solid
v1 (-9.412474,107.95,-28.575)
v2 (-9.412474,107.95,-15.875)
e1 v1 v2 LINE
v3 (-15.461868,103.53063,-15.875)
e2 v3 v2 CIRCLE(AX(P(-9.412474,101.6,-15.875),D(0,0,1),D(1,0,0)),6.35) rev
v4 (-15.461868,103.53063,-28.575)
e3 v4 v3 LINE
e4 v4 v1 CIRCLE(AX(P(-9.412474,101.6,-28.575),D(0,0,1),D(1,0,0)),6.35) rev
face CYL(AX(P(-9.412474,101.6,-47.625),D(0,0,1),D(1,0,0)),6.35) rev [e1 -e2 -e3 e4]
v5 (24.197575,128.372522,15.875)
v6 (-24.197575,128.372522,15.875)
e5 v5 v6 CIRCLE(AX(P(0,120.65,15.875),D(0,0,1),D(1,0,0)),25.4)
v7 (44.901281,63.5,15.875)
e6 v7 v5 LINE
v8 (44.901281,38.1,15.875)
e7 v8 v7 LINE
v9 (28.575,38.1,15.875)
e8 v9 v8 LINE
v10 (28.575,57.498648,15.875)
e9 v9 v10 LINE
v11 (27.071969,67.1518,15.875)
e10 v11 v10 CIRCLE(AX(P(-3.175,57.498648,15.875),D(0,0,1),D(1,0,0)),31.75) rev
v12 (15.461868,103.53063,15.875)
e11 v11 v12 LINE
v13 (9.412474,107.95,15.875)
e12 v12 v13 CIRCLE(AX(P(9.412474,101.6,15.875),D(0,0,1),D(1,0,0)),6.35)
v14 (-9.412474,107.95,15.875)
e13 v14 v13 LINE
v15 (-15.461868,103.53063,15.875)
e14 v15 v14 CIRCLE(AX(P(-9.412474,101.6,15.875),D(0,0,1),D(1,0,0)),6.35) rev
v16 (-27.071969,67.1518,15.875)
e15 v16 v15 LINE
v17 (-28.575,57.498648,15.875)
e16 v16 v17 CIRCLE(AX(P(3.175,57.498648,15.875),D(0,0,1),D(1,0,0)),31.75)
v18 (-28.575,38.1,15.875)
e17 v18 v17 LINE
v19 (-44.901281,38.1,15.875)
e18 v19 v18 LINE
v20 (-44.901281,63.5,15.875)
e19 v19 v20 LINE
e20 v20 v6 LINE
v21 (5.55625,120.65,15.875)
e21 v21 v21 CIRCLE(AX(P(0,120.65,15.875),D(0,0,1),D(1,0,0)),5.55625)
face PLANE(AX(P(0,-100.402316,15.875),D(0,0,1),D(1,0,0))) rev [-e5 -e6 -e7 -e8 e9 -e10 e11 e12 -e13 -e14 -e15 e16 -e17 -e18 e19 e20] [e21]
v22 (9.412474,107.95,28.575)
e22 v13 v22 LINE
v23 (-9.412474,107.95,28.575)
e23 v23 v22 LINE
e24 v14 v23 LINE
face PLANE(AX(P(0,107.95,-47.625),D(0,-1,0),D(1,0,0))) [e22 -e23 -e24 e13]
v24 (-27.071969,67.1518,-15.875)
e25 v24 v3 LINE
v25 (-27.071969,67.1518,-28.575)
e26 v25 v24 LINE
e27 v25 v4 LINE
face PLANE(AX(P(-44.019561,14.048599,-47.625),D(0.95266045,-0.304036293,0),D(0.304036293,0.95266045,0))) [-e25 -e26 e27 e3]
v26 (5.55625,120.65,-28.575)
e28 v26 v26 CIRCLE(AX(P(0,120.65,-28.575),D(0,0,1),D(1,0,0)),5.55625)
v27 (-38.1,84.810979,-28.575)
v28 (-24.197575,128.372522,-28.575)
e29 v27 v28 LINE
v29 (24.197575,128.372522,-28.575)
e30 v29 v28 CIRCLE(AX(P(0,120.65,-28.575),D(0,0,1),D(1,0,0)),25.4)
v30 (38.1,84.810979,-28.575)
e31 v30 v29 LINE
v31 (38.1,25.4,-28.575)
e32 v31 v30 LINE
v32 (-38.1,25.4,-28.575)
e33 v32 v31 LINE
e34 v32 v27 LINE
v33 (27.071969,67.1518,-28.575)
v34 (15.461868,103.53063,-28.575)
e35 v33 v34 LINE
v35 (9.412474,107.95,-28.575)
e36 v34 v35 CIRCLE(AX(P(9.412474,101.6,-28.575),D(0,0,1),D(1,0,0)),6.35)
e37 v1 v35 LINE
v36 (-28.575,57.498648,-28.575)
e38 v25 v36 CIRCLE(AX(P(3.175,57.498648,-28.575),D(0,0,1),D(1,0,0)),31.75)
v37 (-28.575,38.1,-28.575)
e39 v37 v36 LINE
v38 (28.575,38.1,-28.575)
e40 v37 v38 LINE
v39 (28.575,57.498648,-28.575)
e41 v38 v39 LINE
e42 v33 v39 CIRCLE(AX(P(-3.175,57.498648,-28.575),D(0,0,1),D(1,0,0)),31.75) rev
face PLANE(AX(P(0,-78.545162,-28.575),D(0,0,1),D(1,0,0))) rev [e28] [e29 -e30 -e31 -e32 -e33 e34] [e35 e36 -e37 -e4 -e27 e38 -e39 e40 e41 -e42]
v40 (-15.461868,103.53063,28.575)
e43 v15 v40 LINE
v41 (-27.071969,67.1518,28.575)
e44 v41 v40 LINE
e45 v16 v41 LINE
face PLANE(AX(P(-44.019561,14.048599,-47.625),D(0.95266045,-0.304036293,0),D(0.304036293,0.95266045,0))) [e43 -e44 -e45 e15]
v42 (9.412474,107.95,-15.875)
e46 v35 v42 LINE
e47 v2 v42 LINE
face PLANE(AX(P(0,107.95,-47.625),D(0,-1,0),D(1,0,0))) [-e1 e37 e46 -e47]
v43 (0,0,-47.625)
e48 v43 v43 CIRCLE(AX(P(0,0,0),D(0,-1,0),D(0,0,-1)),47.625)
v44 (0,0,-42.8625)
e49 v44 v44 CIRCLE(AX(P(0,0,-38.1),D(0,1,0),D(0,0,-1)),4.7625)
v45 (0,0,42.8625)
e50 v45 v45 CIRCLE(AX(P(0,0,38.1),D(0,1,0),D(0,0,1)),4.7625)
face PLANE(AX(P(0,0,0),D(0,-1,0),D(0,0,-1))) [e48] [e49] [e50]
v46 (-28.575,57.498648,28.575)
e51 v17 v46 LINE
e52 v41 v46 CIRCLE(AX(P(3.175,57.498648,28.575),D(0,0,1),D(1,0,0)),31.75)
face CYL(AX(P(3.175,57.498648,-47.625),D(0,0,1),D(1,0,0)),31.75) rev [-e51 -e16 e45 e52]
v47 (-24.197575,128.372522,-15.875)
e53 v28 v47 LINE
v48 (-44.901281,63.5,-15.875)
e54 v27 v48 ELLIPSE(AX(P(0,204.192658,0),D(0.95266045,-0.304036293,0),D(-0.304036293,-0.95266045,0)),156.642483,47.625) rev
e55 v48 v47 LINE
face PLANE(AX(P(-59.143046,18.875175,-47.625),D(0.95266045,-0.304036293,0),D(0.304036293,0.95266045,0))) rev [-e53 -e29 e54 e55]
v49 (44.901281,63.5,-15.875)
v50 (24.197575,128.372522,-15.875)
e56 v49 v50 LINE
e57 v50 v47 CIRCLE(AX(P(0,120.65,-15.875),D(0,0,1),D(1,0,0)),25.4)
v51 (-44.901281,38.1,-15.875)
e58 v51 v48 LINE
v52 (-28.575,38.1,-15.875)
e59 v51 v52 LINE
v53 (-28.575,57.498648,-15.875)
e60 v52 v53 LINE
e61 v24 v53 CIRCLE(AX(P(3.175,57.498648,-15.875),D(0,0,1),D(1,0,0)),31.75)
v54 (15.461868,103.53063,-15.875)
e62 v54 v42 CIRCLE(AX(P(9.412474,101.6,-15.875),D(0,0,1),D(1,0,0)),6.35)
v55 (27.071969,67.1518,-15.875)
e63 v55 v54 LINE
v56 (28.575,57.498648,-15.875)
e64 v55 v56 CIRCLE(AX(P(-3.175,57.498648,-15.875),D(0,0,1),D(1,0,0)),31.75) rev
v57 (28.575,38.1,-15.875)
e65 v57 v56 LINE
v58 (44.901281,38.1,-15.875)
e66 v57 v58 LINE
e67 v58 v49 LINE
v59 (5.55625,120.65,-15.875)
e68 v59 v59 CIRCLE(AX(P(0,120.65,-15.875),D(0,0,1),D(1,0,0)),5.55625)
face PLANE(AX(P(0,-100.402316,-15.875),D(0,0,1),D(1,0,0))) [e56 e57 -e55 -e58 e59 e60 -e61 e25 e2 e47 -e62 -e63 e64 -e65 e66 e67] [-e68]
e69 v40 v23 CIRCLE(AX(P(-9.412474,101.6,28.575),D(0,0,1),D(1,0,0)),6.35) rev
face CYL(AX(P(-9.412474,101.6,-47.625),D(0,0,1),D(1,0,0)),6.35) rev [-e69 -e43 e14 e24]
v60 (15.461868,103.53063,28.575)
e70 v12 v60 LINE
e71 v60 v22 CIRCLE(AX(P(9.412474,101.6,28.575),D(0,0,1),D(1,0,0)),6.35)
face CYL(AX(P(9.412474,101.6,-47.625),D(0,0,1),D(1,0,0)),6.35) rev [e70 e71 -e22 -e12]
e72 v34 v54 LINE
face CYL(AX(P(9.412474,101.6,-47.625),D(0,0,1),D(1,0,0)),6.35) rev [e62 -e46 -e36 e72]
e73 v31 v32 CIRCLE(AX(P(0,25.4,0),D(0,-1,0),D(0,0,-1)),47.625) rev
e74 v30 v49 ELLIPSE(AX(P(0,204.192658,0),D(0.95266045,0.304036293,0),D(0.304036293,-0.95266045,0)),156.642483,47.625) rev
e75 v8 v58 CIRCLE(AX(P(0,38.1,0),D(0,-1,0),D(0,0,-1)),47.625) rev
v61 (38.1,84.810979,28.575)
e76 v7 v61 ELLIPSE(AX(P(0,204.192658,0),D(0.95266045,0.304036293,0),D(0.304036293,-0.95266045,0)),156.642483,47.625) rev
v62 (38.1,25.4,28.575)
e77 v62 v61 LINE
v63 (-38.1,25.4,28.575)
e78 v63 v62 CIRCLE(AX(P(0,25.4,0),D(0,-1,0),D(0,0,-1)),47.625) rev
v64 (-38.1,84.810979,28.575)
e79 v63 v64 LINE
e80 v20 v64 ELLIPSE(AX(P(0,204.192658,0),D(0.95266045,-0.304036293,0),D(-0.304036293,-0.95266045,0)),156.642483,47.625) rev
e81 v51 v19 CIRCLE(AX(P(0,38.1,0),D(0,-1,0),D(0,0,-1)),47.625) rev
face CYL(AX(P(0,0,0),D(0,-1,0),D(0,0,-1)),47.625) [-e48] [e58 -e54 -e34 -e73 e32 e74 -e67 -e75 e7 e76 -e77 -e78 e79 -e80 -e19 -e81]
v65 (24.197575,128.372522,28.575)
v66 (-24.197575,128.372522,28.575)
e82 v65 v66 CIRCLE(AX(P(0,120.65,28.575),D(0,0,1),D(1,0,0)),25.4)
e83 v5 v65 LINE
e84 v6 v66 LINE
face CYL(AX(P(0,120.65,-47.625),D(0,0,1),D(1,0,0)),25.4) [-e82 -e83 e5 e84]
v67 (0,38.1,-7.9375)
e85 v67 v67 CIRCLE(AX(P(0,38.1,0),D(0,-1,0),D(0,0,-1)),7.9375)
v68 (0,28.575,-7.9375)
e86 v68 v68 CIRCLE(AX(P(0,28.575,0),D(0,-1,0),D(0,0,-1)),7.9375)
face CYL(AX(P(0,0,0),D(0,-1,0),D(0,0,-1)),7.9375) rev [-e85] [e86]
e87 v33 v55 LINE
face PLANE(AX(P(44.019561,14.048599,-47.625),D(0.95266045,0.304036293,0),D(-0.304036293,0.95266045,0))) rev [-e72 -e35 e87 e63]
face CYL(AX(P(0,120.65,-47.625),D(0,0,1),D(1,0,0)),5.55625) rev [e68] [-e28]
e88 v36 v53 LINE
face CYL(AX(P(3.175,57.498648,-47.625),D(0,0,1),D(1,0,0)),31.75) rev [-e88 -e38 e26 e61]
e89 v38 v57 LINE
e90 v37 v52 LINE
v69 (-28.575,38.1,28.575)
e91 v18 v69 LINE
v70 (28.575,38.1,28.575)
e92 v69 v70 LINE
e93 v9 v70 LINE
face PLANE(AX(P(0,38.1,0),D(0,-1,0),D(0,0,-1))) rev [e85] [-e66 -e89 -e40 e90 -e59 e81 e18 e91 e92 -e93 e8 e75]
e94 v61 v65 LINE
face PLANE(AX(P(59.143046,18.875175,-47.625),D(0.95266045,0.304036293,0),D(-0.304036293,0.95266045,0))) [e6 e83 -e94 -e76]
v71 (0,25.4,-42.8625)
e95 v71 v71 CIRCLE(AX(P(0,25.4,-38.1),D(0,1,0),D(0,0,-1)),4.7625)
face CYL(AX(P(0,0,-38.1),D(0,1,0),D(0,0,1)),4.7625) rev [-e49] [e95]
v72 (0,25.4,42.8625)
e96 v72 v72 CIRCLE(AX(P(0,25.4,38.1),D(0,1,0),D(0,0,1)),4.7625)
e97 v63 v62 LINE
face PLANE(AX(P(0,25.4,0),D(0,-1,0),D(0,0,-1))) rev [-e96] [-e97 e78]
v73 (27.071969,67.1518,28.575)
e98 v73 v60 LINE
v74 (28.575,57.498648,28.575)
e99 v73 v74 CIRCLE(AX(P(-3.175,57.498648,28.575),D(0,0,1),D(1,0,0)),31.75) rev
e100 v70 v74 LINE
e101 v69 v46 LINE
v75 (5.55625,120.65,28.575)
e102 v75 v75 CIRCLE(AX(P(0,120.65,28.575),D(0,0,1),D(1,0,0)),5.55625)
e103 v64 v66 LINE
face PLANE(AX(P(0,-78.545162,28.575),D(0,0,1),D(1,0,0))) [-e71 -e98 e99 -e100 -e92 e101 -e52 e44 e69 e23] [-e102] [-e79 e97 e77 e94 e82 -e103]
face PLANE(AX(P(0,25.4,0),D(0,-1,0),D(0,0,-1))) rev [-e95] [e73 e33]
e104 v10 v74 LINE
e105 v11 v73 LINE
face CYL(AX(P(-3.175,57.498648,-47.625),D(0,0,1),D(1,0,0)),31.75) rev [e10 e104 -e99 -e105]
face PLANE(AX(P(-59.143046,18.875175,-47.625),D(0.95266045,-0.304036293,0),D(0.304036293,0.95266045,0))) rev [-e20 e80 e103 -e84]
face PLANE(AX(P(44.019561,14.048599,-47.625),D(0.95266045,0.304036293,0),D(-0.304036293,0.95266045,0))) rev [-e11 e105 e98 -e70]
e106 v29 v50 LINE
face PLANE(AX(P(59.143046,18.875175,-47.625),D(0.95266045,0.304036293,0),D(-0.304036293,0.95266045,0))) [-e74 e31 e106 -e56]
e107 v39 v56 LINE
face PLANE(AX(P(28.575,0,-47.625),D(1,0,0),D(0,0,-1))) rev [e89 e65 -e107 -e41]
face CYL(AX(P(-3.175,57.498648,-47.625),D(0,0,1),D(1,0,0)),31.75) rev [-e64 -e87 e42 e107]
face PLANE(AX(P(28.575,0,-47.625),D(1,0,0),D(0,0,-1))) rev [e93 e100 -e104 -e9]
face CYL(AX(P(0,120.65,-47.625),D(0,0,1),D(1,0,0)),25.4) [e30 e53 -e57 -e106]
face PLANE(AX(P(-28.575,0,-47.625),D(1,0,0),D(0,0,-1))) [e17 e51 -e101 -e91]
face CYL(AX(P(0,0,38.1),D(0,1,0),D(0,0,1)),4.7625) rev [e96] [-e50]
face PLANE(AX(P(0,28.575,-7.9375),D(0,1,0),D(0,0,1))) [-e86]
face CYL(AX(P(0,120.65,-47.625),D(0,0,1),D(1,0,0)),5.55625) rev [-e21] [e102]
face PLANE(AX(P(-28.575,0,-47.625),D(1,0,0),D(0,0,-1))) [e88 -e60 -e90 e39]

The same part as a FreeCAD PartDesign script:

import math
import FreeCAD as App
import Part
import Sketcher

V = App.Vector
Q = App.Units.Quantity

doc = App.newDocument("Part")
body = doc.addObject("PartDesign::Body", "Body")

sketch1 = body.newObject("Sketcher::SketchObject", "Sketch")
sketch1.AttachmentSupport = (doc.getObject("YZ_Plane"), [""])
sketch1.MapMode = "FlatFace"
sketch1.addGeometry(Part.LineSegment(V(0, 0, 0), V(0, -48, 0)), False)
sketch1.addGeometry(Part.LineSegment(V(0, -48, 0), V(146, -48, 0)), False)
sketch1.addGeometry(Part.LineSegment(V(146, -48, 0), V(146, 0, 0)), False)
sketch1.addGeometry(Part.LineSegment(V(146, 0, 0), V(38, 0, 0)), False)
sketch1.addGeometry(Part.LineSegment(V(38, 0, 0), V(38, -8, 0)), False)
sketch1.addGeometry(Part.LineSegment(V(38, -8, 0), V(29, -8, 0)), False)
sketch1.addGeometry(Part.LineSegment(V(29, -8, 0), V(29, 0, 0)), False)
sketch1.addGeometry(Part.LineSegment(V(29, 0, 0), V(0, 0, 0)), False)
sketch1.addConstraint(Sketcher.Constraint("Coincident", 0, 2, 1, 1))
sketch1.addConstraint(Sketcher.Constraint("Coincident", 1, 2, 2, 1))
sketch1.addConstraint(Sketcher.Constraint("Coincident", 2, 2, 3, 1))
sketch1.addConstraint(Sketcher.Constraint("Coincident", 3, 2, 4, 1))
sketch1.addConstraint(Sketcher.Constraint("Coincident", 4, 2, 5, 1))
sketch1.addConstraint(Sketcher.Constraint("Coincident", 5, 2, 6, 1))
sketch1.addConstraint(Sketcher.Constraint("Coincident", 6, 2, 7, 1))
sketch1.addConstraint(Sketcher.Constraint("Coincident", 7, 2, 0, 1))
sketch1.addConstraint(Sketcher.Constraint("Vertical", 0))
sketch1.addConstraint(Sketcher.Constraint("Horizontal", 1))
sketch1.addConstraint(Sketcher.Constraint("Vertical", 2))
sketch1.addConstraint(Sketcher.Constraint("Horizontal", 3))
sketch1.addConstraint(Sketcher.Constraint("Vertical", 4))
sketch1.addConstraint(Sketcher.Constraint("Horizontal", 5))
sketch1.addConstraint(Sketcher.Constraint("Vertical", 6))
sketch1.addConstraint(Sketcher.Constraint("Horizontal", 7))
sketch1.addConstraint(Sketcher.Constraint("Coincident", 7, 2, -1, 1))
sketch1.addConstraint(Sketcher.Constraint("PointOnObject", 2, 2, -1))
sketch1.addConstraint(Sketcher.Constraint("DistanceX", 1, 1, 1, 2, Q("5.75 in")))
sketch1.addConstraint(Sketcher.Constraint("DistanceX", 3, 2, 3, 1, Q("4.25 in")))
sketch1.addConstraint(Sketcher.Constraint("DistanceX", 5, 2, 5, 1, Q("0.375 in")))
sketch1.addConstraint(Sketcher.Constraint("DistanceY", 0, 2, 0, 1, Q("1.875 in")))
sketch1.addConstraint(Sketcher.Constraint("DistanceY", 4, 2, 4, 1, Q("0.3125 in")))
revolution = body.newObject("PartDesign::Revolution", "Revolution")
revolution.Profile = sketch1
revolution.ReferenceAxis = (sketch1, ["H_Axis"])
revolution.Angle = 360

sketch2 = body.newObject("Sketcher::SketchObject", "Sketch001")
sketch2.AttachmentSupport = (doc.getObject("XZ_Plane"), [""])
sketch2.MapMode = "FlatFace"
sketch2.AttachmentOffset = App.Placement(V(0, 0, -5.75 * 25.4), App.Rotation())
sketch2.addGeometry(Part.ArcOfCircle(Part.Circle(V(0, 0, 0), V(0, 0, 1), 48), math.radians(-143), math.radians(-37)), False)
sketch2.addGeometry(Part.LineSegment(V(-38, -29, 0), V(38, -29, 0)), False)
sketch2.addGeometry(Part.LineSegment(V(38, 29, 0), V(-38, 29, 0)), False)
sketch2.addGeometry(Part.ArcOfCircle(Part.Circle(V(0, 0, 0), V(0, 0, 1), 48), math.radians(37), math.radians(143)), False)
sketch2.addConstraint(Sketcher.Constraint("Coincident", 0, 1, 1, 1))
sketch2.addConstraint(Sketcher.Constraint("Coincident", 1, 2, 0, 2))
sketch2.addConstraint(Sketcher.Constraint("Coincident", 2, 1, 3, 1))
sketch2.addConstraint(Sketcher.Constraint("Coincident", 3, 2, 2, 2))
sketch2.addConstraint(Sketcher.Constraint("Horizontal", 1))
sketch2.addConstraint(Sketcher.Constraint("Horizontal", 2))
sketch2.addConstraint(Sketcher.Constraint("Coincident", 0, 3, -1, 1))
sketch2.addConstraint(Sketcher.Constraint("Coincident", 3, 3, -1, 1))
sketch2.addConstraint(Sketcher.Constraint("Equal", 0, 3))
sketch2.addConstraint(Sketcher.Constraint("Vertical", 1, 2, 2, 1))
sketch2.addConstraint(Sketcher.Constraint("DistanceX", 1, 1, 1, 2, Q("3 in")))
sketch2.addConstraint(Sketcher.Constraint("Radius", 0, Q("1.875 in")))
pocket1 = body.newObject("PartDesign::Pocket", "Pocket")
pocket1.Profile = sketch2
pocket1.Length = Q("4.75 in")
pocket1.Reversed = True

sketch3 = body.newObject("Sketcher::SketchObject", "Sketch002")
sketch3.AttachmentSupport = (doc.getObject("XZ_Plane"), [""])
sketch3.MapMode = "FlatFace"
sketch3.AttachmentOffset = App.Placement(V(0, 0, -5.75 * 25.4), App.Rotation())
sketch3.addGeometry(Part.ArcOfCircle(Part.Circle(V(0, 0, 0), V(0, 0, 1), 48), math.radians(-180), math.radians(-160.53)), False)
sketch3.addGeometry(Part.ArcOfCircle(Part.Circle(V(0, 0, 0), V(0, 0, 1), 48), math.radians(160.53), math.radians(180)), False)
sketch3.addGeometry(Part.LineSegment(V(-45, 16, 0), V(45, 16, 0)), False)
sketch3.addGeometry(Part.ArcOfCircle(Part.Circle(V(0, 0, 0), V(0, 0, 1), 48), math.radians(0), math.radians(19.47)), False)
sketch3.addGeometry(Part.ArcOfCircle(Part.Circle(V(0, 0, 0), V(0, 0, 1), 48), math.radians(-19.47), math.radians(0)), False)
sketch3.addGeometry(Part.LineSegment(V(45, -16, 0), V(-45, -16, 0)), False)
sketch3.addConstraint(Sketcher.Constraint("Tangent", 0, 1, 1, 2))
sketch3.addConstraint(Sketcher.Constraint("Coincident", 1, 1, 2, 1))
sketch3.addConstraint(Sketcher.Constraint("Coincident", 2, 2, 3, 2))
sketch3.addConstraint(Sketcher.Constraint("Tangent", 3, 1, 4, 2))
sketch3.addConstraint(Sketcher.Constraint("Coincident", 4, 1, 5, 1))
sketch3.addConstraint(Sketcher.Constraint("Coincident", 5, 2, 0, 2))
sketch3.addConstraint(Sketcher.Constraint("Horizontal", 2))
sketch3.addConstraint(Sketcher.Constraint("Horizontal", 5))
sketch3.addConstraint(Sketcher.Constraint("Coincident", 0, 3, -1, 1))
sketch3.addConstraint(Sketcher.Constraint("Coincident", 3, 3, -1, 1))
sketch3.addConstraint(Sketcher.Constraint("Equal", 0, 1))
sketch3.addConstraint(Sketcher.Constraint("Equal", 1, 3))
sketch3.addConstraint(Sketcher.Constraint("Equal", 3, 4))
sketch3.addConstraint(Sketcher.Constraint("PointOnObject", 0, 1, -1))
sketch3.addConstraint(Sketcher.Constraint("PointOnObject", 3, 1, -1))
sketch3.addConstraint(Sketcher.Constraint("Vertical", 2, 2, 4, 1))
sketch3.addConstraint(Sketcher.Constraint("Radius", 0, Q("1.875 in")))
sketch3.addConstraint(Sketcher.Constraint("DistanceY", 4, 1, 2, 2, Q("1.25 in")))
pocket2 = body.newObject("PartDesign::Pocket", "Pocket001")
pocket2.Profile = sketch3
pocket2.Length = Q("4.25 in")
pocket2.Reversed = True

sketch4 = body.newObject("Sketcher::SketchObject", "Sketch003")
sketch4.AttachmentSupport = (doc.getObject("XY_Plane"), [""])
sketch4.MapMode = "FlatFace"
sketch4.AttachmentOffset = App.Placement(V(0, 0, -0.625 * 25.4), App.Rotation())
sketch4.addGeometry(Part.LineSegment(V(-29, 57, 0), V(-29, 38, 0)), False)
sketch4.addGeometry(Part.LineSegment(V(-29, 38, 0), V(29, 38, 0)), False)
sketch4.addGeometry(Part.LineSegment(V(29, 38, 0), V(29, 57, 0)), False)
sketch4.addGeometry(Part.ArcOfCircle(Part.Circle(V(-3, 57, 0), V(0, 0, 1), 32), math.radians(0), math.radians(17.7)), False)
sketch4.addGeometry(Part.LineSegment(V(27, 67, 0), V(15, 104, 0)), False)
sketch4.addGeometry(Part.ArcOfCircle(Part.Circle(V(9, 102, 0), V(0, 0, 1), 6), math.radians(18), math.radians(90)), False)
sketch4.addGeometry(Part.LineSegment(V(9, 108, 0), V(-9, 108, 0)), False)
sketch4.addGeometry(Part.ArcOfCircle(Part.Circle(V(-9, 102, 0), V(0, 0, 1), 6), math.radians(90), math.radians(162)), False)
sketch4.addGeometry(Part.LineSegment(V(-15, 104, 0), V(-27, 67, 0)), False)
sketch4.addGeometry(Part.ArcOfCircle(Part.Circle(V(3, 57, 0), V(0, 0, 1), 32), math.radians(162.3), math.radians(180)), False)
sketch4.addGeometry(Part.LineSegment(V(-45, 146, 0), V(-45, 64, 0)), False)
sketch4.addGeometry(Part.LineSegment(V(-45, 64, 0), V(-24, 128, 0)), False)
sketch4.addGeometry(Part.ArcOfCircle(Part.Circle(V(0, 121, 0), V(0, 0, 1), 25), math.radians(90), math.radians(162)), False)
sketch4.addGeometry(Part.LineSegment(V(0, 146, 0), V(-45, 146, 0)), False)
sketch4.addGeometry(Part.LineSegment(V(45, 146, 0), V(0, 146, 0)), False)
sketch4.addGeometry(Part.ArcOfCircle(Part.Circle(V(0, 121, 0), V(0, 0, 1), 25), math.radians(18), math.radians(90)), False)
sketch4.addGeometry(Part.LineSegment(V(24, 128, 0), V(45, 64, 0)), False)
sketch4.addGeometry(Part.LineSegment(V(45, 64, 0), V(45, 146, 0)), False)
sketch4.addGeometry(Part.ArcOfCircle(Part.Circle(V(0, 121, 0), V(0, 0, 1), 6), math.radians(0), math.radians(90)), False)
sketch4.addGeometry(Part.ArcOfCircle(Part.Circle(V(0, 121, 0), V(0, 0, 1), 6), math.radians(90), math.radians(270)), False)
sketch4.addGeometry(Part.ArcOfCircle(Part.Circle(V(0, 121, 0), V(0, 0, 1), 6), math.radians(-90), math.radians(0)), False)
sketch4.addConstraint(Sketcher.Constraint("Coincident", 0, 2, 1, 1))
sketch4.addConstraint(Sketcher.Constraint("Coincident", 1, 2, 2, 1))
sketch4.addConstraint(Sketcher.Constraint("Tangent", 2, 2, 3, 1))
sketch4.addConstraint(Sketcher.Constraint("Tangent", 3, 2, 4, 1))
sketch4.addConstraint(Sketcher.Constraint("Tangent", 4, 2, 5, 1))
sketch4.addConstraint(Sketcher.Constraint("Tangent", 5, 2, 6, 1))
sketch4.addConstraint(Sketcher.Constraint("Tangent", 6, 2, 7, 1))
sketch4.addConstraint(Sketcher.Constraint("Tangent", 7, 2, 8, 1))
sketch4.addConstraint(Sketcher.Constraint("Tangent", 8, 2, 9, 1))
sketch4.addConstraint(Sketcher.Constraint("Tangent", 9, 2, 0, 1))
sketch4.addConstraint(Sketcher.Constraint("Coincident", 10, 2, 11, 1))
sketch4.addConstraint(Sketcher.Constraint("Tangent", 11, 2, 12, 2))
sketch4.addConstraint(Sketcher.Constraint("Tangent", 12, 1, 13, 1))
sketch4.addConstraint(Sketcher.Constraint("Coincident", 13, 2, 10, 1))
sketch4.addConstraint(Sketcher.Constraint("Tangent", 14, 2, 15, 2))
sketch4.addConstraint(Sketcher.Constraint("Tangent", 15, 1, 16, 1))
sketch4.addConstraint(Sketcher.Constraint("Coincident", 16, 2, 17, 1))
sketch4.addConstraint(Sketcher.Constraint("Coincident", 17, 2, 14, 1))
sketch4.addConstraint(Sketcher.Constraint("Tangent", 18, 2, 19, 1))
sketch4.addConstraint(Sketcher.Constraint("Tangent", 19, 2, 20, 1))
sketch4.addConstraint(Sketcher.Constraint("Tangent", 20, 2, 18, 1))
sketch4.addConstraint(Sketcher.Constraint("Vertical", 0))
sketch4.addConstraint(Sketcher.Constraint("Horizontal", 1))
sketch4.addConstraint(Sketcher.Constraint("Vertical", 2))
sketch4.addConstraint(Sketcher.Constraint("Horizontal", 6))
sketch4.addConstraint(Sketcher.Constraint("Vertical", 10))
sketch4.addConstraint(Sketcher.Constraint("Horizontal", 13))
sketch4.addConstraint(Sketcher.Constraint("Horizontal", 14))
sketch4.addConstraint(Sketcher.Constraint("Vertical", 17))
sketch4.addConstraint(Sketcher.Constraint("Coincident", 15, 3, 12, 3))
sketch4.addConstraint(Sketcher.Constraint("Coincident", 18, 3, 12, 3))
sketch4.addConstraint(Sketcher.Constraint("Equal", 5, 7))
sketch4.addConstraint(Sketcher.Constraint("Equal", 3, 9))
sketch4.addConstraint(Sketcher.Constraint("Equal", 12, 15))
sketch4.addConstraint(Sketcher.Constraint("Symmetric", 3, 3, 9, 3, -2))
sketch4.addConstraint(Sketcher.Constraint("Symmetric", 11, 2, 15, 1, -2))
sketch4.addConstraint(Sketcher.Constraint("PointOnObject", 18, 2, -2))
sketch4.addConstraint(Sketcher.Constraint("PointOnObject", 19, 2, -2))
sketch4.addConstraint(Sketcher.Constraint("Parallel", 8, 11))
sketch4.addConstraint(Sketcher.Constraint("Parallel", 4, 16))
sketch4.addConstraint(Sketcher.Constraint("Horizontal", 10, 2, 16, 2))
sketch4.addConstraint(Sketcher.Constraint("Horizontal", 19, 3, 20, 2))
sketch4.addConstraint(Sketcher.Constraint("Radius", 12, Q("1 in")))
sketch4.addConstraint(Sketcher.Constraint("Radius", 3, Q("1.25 in")))
sketch4.addConstraint(Sketcher.Constraint("Radius", 5, Q("0.25 in")))
sketch4.addConstraint(Sketcher.Constraint("DistanceY", -1, 1, 5, 3, Q("4 in")))
sketch4.addConstraint(Sketcher.Constraint("Radius", 18, Q("0.21875 in")))
sketch4.addConstraint(Sketcher.Constraint("DistanceX", 0, 2, 3, 3, Q("1 in")))
sketch4.addConstraint(Sketcher.Constraint("DistanceY", 0, 2, 10, 2, Q("1 in")))
sketch4.addConstraint(Sketcher.Constraint("DistanceY", 10, 2, 10, 1, Q("3.25 in")))
sketch4.addConstraint(Sketcher.Constraint("DistanceY", -1, 1, 0, 2, Q("1.5 in")))
sketch4.addConstraint(Sketcher.Constraint("DistanceX", 13, 2, 13, 1, 44.901281))
sketch4.addConstraint(Sketcher.Constraint("DistanceY", -1, 1, 3, 2, 67.1518))
pocket3 = body.newObject("PartDesign::Pocket", "Pocket002")
pocket3.Profile = sketch4
pocket3.Type = "ThroughAll"
pocket3.Midplane = True

sketch5 = body.newObject("Sketcher::SketchObject", "Sketch004")
sketch5.AttachmentSupport = (doc.getObject("XZ_Plane"), [""])
sketch5.MapMode = "FlatFace"
sketch5.AttachmentOffset = App.Placement(V(0, 0, -1 * 25.4), App.Rotation())
sketch5.addGeometry(Part.Circle(V(0, 38.1, 0), V(0, 0, 1), 4.8), False)
sketch5.addGeometry(Part.Circle(V(0, -38.1, 0), V(0, 0, 1), 4.8), False)
sketch5.addConstraint(Sketcher.Constraint("Equal", 0, 1))
sketch5.addConstraint(Sketcher.Constraint("Symmetric", 0, 3, 1, 3, -1, 1))
sketch5.addConstraint(Sketcher.Constraint("PointOnObject", 0, 3, -2))
sketch5.addConstraint(Sketcher.Constraint("Diameter", 0, Q("0.375 in")))
sketch5.addConstraint(Sketcher.Constraint("DistanceY", 1, 3, 0, 3, Q("3 in")))
pocket4 = body.newObject("PartDesign::Pocket", "Pocket003")
pocket4.Profile = sketch5
pocket4.Type = "ThroughAll"
pocket4.Reversed = True

doc.recompute()
